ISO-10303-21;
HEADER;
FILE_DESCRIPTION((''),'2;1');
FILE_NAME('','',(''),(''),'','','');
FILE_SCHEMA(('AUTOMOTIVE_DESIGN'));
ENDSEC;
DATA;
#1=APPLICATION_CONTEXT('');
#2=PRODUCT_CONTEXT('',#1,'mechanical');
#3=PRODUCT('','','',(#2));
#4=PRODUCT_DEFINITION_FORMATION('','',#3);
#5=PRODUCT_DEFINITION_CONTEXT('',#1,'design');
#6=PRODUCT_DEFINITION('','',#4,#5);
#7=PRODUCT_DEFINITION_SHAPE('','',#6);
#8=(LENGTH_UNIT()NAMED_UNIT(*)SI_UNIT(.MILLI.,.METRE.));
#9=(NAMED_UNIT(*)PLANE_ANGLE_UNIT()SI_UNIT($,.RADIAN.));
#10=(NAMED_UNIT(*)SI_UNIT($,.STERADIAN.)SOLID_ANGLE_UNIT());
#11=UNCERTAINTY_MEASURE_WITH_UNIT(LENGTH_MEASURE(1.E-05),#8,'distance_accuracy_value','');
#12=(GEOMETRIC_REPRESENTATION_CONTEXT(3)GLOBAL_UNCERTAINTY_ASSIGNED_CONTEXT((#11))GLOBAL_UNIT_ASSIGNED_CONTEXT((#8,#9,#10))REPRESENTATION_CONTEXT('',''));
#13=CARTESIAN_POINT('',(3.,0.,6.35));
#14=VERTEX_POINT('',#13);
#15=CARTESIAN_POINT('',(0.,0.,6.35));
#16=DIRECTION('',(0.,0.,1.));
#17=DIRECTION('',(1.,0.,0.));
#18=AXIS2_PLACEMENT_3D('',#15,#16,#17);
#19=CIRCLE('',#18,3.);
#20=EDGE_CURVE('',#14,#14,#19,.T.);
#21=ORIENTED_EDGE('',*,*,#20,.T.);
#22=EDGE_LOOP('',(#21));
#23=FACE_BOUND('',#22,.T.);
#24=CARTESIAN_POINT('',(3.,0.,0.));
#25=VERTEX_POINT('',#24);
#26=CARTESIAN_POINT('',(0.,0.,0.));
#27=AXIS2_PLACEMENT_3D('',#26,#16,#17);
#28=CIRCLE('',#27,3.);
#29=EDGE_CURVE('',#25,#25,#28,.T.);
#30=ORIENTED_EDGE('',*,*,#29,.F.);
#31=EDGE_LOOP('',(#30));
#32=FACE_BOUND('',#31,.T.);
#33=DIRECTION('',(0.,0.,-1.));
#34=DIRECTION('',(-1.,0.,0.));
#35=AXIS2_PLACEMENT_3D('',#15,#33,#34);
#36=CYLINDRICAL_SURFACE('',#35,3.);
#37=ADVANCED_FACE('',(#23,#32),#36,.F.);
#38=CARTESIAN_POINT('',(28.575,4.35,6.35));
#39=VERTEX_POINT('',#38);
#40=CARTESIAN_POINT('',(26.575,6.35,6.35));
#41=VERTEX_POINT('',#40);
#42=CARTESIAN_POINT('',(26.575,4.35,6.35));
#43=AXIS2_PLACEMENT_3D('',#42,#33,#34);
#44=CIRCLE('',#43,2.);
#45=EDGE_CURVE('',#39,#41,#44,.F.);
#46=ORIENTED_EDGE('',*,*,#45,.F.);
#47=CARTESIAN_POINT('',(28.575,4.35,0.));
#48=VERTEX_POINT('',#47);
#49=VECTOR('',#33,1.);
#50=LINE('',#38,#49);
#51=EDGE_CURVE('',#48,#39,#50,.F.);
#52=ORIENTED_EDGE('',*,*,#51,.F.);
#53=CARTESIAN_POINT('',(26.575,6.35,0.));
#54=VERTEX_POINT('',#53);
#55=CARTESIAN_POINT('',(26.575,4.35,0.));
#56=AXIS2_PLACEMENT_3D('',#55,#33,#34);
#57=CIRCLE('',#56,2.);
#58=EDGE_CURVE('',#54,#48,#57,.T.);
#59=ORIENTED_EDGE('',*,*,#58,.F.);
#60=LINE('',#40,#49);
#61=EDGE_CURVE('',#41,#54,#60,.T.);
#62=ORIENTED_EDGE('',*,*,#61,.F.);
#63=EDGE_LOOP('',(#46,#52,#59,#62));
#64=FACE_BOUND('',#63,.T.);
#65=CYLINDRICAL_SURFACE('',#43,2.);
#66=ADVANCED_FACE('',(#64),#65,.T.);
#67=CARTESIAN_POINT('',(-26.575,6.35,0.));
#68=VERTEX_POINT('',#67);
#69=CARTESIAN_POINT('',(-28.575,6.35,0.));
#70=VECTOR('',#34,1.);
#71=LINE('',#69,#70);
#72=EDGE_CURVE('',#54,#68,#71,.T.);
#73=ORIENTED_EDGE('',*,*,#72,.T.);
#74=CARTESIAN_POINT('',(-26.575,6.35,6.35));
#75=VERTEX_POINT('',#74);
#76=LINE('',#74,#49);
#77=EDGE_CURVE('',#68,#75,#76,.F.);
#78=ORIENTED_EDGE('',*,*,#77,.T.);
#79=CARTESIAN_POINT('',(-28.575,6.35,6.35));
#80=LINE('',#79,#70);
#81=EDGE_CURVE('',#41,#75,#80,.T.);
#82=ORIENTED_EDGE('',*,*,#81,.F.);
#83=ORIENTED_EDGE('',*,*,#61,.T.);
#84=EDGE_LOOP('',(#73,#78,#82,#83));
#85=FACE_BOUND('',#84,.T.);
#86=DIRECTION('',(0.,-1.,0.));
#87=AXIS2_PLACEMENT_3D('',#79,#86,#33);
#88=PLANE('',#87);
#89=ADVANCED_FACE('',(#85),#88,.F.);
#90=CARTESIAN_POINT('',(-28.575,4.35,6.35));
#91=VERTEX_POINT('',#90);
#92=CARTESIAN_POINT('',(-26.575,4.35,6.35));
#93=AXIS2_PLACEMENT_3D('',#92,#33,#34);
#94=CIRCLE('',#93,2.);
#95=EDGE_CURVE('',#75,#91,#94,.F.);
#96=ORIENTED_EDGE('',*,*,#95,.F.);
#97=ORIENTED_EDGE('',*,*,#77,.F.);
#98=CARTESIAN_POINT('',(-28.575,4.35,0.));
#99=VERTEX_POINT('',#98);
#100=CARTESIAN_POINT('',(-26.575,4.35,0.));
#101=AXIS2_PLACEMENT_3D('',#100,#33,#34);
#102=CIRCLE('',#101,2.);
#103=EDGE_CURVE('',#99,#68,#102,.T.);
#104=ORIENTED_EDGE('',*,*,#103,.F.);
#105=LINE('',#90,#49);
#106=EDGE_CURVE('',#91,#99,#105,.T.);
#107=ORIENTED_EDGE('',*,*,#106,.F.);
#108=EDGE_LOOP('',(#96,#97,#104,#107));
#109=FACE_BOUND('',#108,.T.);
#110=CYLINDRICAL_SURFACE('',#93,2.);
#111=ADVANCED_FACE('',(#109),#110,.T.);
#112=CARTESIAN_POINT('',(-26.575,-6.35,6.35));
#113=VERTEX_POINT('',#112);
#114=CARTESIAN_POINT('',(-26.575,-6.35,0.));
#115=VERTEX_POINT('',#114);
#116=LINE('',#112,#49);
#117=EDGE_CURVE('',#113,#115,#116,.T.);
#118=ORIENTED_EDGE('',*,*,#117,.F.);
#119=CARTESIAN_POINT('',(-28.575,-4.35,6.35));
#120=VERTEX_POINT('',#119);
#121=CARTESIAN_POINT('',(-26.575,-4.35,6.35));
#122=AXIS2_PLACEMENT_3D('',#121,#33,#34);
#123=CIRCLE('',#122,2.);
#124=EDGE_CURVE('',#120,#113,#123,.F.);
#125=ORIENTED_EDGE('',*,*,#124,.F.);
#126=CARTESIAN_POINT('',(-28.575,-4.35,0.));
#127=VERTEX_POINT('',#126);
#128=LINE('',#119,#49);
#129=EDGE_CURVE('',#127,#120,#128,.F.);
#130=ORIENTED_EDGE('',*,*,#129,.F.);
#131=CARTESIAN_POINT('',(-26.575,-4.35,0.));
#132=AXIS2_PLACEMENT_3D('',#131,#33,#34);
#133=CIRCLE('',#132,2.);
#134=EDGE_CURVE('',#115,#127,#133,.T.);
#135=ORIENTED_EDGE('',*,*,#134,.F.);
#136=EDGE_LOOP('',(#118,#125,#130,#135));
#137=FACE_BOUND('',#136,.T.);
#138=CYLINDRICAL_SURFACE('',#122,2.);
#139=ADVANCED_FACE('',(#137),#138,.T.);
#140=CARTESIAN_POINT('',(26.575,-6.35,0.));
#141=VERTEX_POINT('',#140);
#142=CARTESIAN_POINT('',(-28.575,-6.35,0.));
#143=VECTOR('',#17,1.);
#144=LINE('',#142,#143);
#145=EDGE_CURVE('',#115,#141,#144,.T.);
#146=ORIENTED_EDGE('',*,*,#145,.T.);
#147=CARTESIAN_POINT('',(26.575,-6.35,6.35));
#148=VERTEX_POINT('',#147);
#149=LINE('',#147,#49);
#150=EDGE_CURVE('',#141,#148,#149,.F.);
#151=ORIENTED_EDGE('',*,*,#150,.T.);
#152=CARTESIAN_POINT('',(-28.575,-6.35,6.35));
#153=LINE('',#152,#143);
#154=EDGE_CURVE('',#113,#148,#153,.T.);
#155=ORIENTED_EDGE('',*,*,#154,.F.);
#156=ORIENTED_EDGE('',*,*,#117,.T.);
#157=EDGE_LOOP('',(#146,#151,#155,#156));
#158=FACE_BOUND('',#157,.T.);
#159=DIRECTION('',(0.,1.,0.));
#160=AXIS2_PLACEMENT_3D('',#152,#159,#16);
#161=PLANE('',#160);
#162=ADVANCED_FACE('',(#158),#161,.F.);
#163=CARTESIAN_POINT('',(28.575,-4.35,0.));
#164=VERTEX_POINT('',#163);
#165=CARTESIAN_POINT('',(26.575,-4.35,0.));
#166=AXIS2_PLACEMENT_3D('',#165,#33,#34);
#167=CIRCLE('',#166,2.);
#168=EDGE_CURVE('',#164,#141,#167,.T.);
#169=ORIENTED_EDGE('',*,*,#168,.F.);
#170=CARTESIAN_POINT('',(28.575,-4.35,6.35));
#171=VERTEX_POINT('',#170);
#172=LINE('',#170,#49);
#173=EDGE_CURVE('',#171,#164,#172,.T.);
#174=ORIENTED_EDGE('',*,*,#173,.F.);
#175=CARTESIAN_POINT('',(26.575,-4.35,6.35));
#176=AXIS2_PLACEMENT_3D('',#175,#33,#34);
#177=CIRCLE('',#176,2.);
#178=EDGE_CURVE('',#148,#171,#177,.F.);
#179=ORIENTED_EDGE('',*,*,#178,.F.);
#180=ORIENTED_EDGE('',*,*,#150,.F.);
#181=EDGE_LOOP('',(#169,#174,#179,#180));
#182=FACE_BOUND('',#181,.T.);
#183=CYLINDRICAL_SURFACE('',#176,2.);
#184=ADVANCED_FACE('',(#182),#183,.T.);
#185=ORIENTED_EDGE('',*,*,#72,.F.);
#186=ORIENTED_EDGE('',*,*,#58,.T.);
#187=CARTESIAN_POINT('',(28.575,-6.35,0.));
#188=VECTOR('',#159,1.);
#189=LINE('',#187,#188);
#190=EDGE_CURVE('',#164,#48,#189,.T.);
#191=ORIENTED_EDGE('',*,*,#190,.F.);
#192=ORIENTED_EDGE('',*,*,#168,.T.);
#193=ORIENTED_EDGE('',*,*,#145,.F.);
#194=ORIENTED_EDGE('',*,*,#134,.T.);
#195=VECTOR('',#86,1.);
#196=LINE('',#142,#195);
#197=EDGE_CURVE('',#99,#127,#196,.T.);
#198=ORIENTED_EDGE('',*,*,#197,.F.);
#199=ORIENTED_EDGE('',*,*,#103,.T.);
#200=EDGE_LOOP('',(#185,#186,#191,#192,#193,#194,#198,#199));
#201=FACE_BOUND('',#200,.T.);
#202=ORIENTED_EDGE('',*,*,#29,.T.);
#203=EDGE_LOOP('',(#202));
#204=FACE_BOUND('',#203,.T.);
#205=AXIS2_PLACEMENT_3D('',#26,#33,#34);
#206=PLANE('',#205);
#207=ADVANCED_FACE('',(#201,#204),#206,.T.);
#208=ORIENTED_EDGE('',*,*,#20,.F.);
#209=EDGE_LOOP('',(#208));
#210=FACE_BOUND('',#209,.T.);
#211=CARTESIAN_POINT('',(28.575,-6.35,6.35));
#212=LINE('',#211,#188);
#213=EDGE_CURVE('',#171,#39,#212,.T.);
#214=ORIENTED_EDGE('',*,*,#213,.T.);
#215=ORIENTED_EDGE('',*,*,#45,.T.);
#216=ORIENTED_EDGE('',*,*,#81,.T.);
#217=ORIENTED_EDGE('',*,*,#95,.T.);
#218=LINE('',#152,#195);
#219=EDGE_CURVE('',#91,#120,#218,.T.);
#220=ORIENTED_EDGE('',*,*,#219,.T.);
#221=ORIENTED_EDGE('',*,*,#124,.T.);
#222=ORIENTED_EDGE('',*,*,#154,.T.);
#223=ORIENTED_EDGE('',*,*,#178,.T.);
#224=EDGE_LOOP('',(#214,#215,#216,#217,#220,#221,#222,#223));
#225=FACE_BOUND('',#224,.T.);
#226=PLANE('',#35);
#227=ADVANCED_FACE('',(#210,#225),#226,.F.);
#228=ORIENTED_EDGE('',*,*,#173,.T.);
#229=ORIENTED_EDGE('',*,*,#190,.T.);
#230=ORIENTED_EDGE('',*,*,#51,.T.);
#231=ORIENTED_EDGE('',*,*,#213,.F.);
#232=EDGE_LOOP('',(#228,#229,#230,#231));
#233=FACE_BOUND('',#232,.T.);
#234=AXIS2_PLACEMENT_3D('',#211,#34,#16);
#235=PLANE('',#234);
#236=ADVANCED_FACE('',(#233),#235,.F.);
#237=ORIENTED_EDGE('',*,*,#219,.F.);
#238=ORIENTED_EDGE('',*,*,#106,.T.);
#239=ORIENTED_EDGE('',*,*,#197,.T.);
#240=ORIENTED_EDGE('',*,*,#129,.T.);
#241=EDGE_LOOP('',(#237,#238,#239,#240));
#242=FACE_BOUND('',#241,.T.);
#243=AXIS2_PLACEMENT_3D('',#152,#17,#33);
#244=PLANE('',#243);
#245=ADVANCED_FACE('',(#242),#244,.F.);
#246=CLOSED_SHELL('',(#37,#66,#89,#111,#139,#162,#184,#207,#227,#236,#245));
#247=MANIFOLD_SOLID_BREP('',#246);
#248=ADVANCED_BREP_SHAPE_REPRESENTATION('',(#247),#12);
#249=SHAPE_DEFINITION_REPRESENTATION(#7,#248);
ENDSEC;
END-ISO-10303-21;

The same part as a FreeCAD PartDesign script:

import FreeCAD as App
import Part
import Sketcher
Q = App.Units.Quantity


def edges_at(feature, points):
    """Names of the edges that pass closest to the given points."""
    edges = feature.Shape.Edges
    near = lambda p: min(range(len(edges)), key=lambda i: edges[i].distToShape(Part.Vertex(*p))[0])
    return sorted({f"Edge{near(p) + 1}" for p in points})


def add_polygon(sketch, points):
    """Adds a closed chain of lines whose ends are joined by coincident constraints."""
    first, n = sketch.GeometryCount, len(points)
    for a, b in zip(points, points[1:] + points[:1]):
        sketch.addGeometry(Part.LineSegment(App.Vector(*a, 0), App.Vector(*b, 0)), False)
    for i in range(n):
        sketch.addConstraint(Sketcher.Constraint("Coincident", first + i, 2, first + (i + 1) % n, 1))

doc = App.newDocument("Part")
body = doc.addObject("PartDesign::Body", "Body")

sketch1 = body.newObject("Sketcher::SketchObject", "Sketch")
sketch1.AttachmentSupport = (doc.getObject("XY_Plane"), [""])
sketch1.MapMode = "FlatFace"
add_polygon(sketch1, [(-28.6, 6.3), (-28.6, -6.3), (28.6, -6.3), (28.6, 6.3)])
sketch1.addGeometry(Part.Circle(App.Vector(0, 0, 0), App.Vector(0, 0, 1), 3), False)
sketch1.addConstraint(Sketcher.Constraint("Vertical", 0))
sketch1.addConstraint(Sketcher.Constraint("Horizontal", 1))
sketch1.addConstraint(Sketcher.Constraint("Vertical", 2))
sketch1.addConstraint(Sketcher.Constraint("Horizontal", 3))
sketch1.addConstraint(Sketcher.Constraint("Coincident", 4, 3, -1, 1))
sketch1.addConstraint(Sketcher.Constraint("Symmetric", 0, 2, 2, 2, -1, 1))
sketch1.addConstraint(Sketcher.Constraint("DistanceY", 0, 2, 0, 1, Q("0.5 in")))
sketch1.addConstraint(Sketcher.Constraint("DistanceX", 1, 1, 1, 2, Q("2.25 in")))
sketch1.addConstraint(Sketcher.Constraint("Diameter", 4, 6.0))
pad1 = body.newObject("PartDesign::Pad", "Pad")
pad1.Profile = sketch1
pad1.Length = Q("0.25 in")
doc.recompute()

fillet = body.newObject("PartDesign::Fillet", "Fillet")
fillet.Base = (pad1, edges_at(pad1, [
    (28.575, -6.35, 3.175),
    (-28.575, -6.35, 3.175),
    (-28.575, 6.35, 3.175),
    (28.575, 6.35, 3.175),
]))
fillet.Radius = 2

doc.recompute()
